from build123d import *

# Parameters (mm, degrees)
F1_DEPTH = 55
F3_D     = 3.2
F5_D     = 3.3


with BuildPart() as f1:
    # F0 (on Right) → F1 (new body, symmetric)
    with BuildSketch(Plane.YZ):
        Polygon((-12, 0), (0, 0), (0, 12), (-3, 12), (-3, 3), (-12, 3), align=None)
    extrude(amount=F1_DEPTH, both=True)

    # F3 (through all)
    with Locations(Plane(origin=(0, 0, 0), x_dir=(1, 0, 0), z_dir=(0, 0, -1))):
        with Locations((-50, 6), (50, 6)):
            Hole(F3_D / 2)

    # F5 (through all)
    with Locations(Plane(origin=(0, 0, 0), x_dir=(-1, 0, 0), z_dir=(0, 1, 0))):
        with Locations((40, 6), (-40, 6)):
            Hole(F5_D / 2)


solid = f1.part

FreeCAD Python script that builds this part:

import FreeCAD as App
import Part
import Sketcher

V = App.Vector
Q = App.Units.Quantity

doc = App.newDocument("Part")
body = doc.addObject("PartDesign::Body", "Body")

sketch1 = body.newObject("Sketcher::SketchObject", "Sketch")
sketch1.AttachmentSupport = (doc.getObject("YZ_Plane"), [""])
sketch1.MapMode = "FlatFace"
sketch1.addGeometry([
    Part.LineSegment(V(-12, 0, 0), V(0, 0, 0)),
    Part.LineSegment(V(0, 0, 0), V(0, 12, 0)),
    Part.LineSegment(V(0, 12, 0), V(-3, 12, 0)),
    Part.LineSegment(V(-3, 12, 0), V(-3, 3, 0)),
    Part.LineSegment(V(-3, 3, 0), V(-12, 3, 0)),
    Part.LineSegment(V(-12, 3, 0), V(-12, 0, 0)),
], False)
sketch1.addConstraint([
    Sketcher.Constraint("Coincident", 0, 2, 1, 1),
    Sketcher.Constraint("Coincident", 1, 2, 2, 1),
    Sketcher.Constraint("Coincident", 2, 2, 3, 1),
    Sketcher.Constraint("Coincident", 3, 2, 4, 1),
    Sketcher.Constraint("Coincident", 4, 2, 5, 1),
    Sketcher.Constraint("Coincident", 5, 2, 0, 1),
    Sketcher.Constraint("Horizontal", 0),
    Sketcher.Constraint("Vertical", 1),
    Sketcher.Constraint("Horizontal", 2),
    Sketcher.Constraint("Vertical", 3),
    Sketcher.Constraint("Horizontal", 4),
    Sketcher.Constraint("Vertical", 5),
    Sketcher.Constraint("Coincident", 0, 2, -1, 1),
    Sketcher.Constraint("Equal", 0, 1),
    Sketcher.Constraint("Equal", 4, 3),
    Sketcher.Constraint("DistanceX", 0, 1, 0, 2, Q("12 mm")),
    Sketcher.Constraint("DistanceX", 2, 2, 2, 1, Q("3 mm")),
])
pad1 = body.newObject("PartDesign::Pad", "Pad")
pad1.Profile = sketch1
pad1.Length = 110
pad1.Midplane = True

sketch2 = body.newObject("Sketcher::SketchObject", "Sketch001")
sketch2.AttachmentSupport = (doc.getObject("XY_Plane"), [""])
sketch2.MapMode = "FlatFace"
sketch2.addGeometry([
    Part.Circle(V(-50, -6, 0), V(0, 0, 1), 1.6),
    Part.Circle(V(50, -6, 0), V(0, 0, 1), 1.6),
], False)
sketch2.addConstraint([
    Sketcher.Constraint("Equal", 0, 1),
    Sketcher.Constraint("Symmetric", 0, 3, 1, 3, -2),
    Sketcher.Constraint("Diameter", 0, Q("3.2 mm")),
    Sketcher.Constraint("DistanceX", 0, 3, -1, 1, Q("50 mm")),
    Sketcher.Constraint("DistanceY", 0, 3, -1, 1, Q("6 mm")),
])
doc.recompute()
hole = body.newObject("PartDesign::Hole", "Hole")
hole.Profile = sketch2
hole.ThreadType = "None"
hole.Diameter = 3.2
hole.DepthType = "ThroughAll"
hole.Reversed = True

sketch3 = body.newObject("Sketcher::SketchObject", "Sketch002")
sketch3.AttachmentSupport = (doc.getObject("XZ_Plane"), [""])
sketch3.MapMode = "FlatFace"
sketch3.addGeometry([
    Part.Circle(V(-40, 6, 0), V(0, 0, 1), 1.65),
    Part.Circle(V(40, 6, 0), V(0, 0, 1), 1.65),
], False)
sketch3.addConstraint([
    Sketcher.Constraint("Equal", 0, 1),
    Sketcher.Constraint("Symmetric", 0, 3, 1, 3, -2),
    Sketcher.Constraint("Diameter", 0, Q("3.3 mm")),
    Sketcher.Constraint("DistanceX", 0, 3, -1, 1, Q("40 mm")),
    Sketcher.Constraint("DistanceY", -1, 1, 0, 3, Q("6 mm")),
])
doc.recompute()
hole2 = body.newObject("PartDesign::Hole", "Hole001")
hole2.Profile = sketch3
hole2.ThreadType = "None"
hole2.Diameter = 3.3
hole2.DepthType = "ThroughAll"
hole2.Reversed = True

doc.recompute()
